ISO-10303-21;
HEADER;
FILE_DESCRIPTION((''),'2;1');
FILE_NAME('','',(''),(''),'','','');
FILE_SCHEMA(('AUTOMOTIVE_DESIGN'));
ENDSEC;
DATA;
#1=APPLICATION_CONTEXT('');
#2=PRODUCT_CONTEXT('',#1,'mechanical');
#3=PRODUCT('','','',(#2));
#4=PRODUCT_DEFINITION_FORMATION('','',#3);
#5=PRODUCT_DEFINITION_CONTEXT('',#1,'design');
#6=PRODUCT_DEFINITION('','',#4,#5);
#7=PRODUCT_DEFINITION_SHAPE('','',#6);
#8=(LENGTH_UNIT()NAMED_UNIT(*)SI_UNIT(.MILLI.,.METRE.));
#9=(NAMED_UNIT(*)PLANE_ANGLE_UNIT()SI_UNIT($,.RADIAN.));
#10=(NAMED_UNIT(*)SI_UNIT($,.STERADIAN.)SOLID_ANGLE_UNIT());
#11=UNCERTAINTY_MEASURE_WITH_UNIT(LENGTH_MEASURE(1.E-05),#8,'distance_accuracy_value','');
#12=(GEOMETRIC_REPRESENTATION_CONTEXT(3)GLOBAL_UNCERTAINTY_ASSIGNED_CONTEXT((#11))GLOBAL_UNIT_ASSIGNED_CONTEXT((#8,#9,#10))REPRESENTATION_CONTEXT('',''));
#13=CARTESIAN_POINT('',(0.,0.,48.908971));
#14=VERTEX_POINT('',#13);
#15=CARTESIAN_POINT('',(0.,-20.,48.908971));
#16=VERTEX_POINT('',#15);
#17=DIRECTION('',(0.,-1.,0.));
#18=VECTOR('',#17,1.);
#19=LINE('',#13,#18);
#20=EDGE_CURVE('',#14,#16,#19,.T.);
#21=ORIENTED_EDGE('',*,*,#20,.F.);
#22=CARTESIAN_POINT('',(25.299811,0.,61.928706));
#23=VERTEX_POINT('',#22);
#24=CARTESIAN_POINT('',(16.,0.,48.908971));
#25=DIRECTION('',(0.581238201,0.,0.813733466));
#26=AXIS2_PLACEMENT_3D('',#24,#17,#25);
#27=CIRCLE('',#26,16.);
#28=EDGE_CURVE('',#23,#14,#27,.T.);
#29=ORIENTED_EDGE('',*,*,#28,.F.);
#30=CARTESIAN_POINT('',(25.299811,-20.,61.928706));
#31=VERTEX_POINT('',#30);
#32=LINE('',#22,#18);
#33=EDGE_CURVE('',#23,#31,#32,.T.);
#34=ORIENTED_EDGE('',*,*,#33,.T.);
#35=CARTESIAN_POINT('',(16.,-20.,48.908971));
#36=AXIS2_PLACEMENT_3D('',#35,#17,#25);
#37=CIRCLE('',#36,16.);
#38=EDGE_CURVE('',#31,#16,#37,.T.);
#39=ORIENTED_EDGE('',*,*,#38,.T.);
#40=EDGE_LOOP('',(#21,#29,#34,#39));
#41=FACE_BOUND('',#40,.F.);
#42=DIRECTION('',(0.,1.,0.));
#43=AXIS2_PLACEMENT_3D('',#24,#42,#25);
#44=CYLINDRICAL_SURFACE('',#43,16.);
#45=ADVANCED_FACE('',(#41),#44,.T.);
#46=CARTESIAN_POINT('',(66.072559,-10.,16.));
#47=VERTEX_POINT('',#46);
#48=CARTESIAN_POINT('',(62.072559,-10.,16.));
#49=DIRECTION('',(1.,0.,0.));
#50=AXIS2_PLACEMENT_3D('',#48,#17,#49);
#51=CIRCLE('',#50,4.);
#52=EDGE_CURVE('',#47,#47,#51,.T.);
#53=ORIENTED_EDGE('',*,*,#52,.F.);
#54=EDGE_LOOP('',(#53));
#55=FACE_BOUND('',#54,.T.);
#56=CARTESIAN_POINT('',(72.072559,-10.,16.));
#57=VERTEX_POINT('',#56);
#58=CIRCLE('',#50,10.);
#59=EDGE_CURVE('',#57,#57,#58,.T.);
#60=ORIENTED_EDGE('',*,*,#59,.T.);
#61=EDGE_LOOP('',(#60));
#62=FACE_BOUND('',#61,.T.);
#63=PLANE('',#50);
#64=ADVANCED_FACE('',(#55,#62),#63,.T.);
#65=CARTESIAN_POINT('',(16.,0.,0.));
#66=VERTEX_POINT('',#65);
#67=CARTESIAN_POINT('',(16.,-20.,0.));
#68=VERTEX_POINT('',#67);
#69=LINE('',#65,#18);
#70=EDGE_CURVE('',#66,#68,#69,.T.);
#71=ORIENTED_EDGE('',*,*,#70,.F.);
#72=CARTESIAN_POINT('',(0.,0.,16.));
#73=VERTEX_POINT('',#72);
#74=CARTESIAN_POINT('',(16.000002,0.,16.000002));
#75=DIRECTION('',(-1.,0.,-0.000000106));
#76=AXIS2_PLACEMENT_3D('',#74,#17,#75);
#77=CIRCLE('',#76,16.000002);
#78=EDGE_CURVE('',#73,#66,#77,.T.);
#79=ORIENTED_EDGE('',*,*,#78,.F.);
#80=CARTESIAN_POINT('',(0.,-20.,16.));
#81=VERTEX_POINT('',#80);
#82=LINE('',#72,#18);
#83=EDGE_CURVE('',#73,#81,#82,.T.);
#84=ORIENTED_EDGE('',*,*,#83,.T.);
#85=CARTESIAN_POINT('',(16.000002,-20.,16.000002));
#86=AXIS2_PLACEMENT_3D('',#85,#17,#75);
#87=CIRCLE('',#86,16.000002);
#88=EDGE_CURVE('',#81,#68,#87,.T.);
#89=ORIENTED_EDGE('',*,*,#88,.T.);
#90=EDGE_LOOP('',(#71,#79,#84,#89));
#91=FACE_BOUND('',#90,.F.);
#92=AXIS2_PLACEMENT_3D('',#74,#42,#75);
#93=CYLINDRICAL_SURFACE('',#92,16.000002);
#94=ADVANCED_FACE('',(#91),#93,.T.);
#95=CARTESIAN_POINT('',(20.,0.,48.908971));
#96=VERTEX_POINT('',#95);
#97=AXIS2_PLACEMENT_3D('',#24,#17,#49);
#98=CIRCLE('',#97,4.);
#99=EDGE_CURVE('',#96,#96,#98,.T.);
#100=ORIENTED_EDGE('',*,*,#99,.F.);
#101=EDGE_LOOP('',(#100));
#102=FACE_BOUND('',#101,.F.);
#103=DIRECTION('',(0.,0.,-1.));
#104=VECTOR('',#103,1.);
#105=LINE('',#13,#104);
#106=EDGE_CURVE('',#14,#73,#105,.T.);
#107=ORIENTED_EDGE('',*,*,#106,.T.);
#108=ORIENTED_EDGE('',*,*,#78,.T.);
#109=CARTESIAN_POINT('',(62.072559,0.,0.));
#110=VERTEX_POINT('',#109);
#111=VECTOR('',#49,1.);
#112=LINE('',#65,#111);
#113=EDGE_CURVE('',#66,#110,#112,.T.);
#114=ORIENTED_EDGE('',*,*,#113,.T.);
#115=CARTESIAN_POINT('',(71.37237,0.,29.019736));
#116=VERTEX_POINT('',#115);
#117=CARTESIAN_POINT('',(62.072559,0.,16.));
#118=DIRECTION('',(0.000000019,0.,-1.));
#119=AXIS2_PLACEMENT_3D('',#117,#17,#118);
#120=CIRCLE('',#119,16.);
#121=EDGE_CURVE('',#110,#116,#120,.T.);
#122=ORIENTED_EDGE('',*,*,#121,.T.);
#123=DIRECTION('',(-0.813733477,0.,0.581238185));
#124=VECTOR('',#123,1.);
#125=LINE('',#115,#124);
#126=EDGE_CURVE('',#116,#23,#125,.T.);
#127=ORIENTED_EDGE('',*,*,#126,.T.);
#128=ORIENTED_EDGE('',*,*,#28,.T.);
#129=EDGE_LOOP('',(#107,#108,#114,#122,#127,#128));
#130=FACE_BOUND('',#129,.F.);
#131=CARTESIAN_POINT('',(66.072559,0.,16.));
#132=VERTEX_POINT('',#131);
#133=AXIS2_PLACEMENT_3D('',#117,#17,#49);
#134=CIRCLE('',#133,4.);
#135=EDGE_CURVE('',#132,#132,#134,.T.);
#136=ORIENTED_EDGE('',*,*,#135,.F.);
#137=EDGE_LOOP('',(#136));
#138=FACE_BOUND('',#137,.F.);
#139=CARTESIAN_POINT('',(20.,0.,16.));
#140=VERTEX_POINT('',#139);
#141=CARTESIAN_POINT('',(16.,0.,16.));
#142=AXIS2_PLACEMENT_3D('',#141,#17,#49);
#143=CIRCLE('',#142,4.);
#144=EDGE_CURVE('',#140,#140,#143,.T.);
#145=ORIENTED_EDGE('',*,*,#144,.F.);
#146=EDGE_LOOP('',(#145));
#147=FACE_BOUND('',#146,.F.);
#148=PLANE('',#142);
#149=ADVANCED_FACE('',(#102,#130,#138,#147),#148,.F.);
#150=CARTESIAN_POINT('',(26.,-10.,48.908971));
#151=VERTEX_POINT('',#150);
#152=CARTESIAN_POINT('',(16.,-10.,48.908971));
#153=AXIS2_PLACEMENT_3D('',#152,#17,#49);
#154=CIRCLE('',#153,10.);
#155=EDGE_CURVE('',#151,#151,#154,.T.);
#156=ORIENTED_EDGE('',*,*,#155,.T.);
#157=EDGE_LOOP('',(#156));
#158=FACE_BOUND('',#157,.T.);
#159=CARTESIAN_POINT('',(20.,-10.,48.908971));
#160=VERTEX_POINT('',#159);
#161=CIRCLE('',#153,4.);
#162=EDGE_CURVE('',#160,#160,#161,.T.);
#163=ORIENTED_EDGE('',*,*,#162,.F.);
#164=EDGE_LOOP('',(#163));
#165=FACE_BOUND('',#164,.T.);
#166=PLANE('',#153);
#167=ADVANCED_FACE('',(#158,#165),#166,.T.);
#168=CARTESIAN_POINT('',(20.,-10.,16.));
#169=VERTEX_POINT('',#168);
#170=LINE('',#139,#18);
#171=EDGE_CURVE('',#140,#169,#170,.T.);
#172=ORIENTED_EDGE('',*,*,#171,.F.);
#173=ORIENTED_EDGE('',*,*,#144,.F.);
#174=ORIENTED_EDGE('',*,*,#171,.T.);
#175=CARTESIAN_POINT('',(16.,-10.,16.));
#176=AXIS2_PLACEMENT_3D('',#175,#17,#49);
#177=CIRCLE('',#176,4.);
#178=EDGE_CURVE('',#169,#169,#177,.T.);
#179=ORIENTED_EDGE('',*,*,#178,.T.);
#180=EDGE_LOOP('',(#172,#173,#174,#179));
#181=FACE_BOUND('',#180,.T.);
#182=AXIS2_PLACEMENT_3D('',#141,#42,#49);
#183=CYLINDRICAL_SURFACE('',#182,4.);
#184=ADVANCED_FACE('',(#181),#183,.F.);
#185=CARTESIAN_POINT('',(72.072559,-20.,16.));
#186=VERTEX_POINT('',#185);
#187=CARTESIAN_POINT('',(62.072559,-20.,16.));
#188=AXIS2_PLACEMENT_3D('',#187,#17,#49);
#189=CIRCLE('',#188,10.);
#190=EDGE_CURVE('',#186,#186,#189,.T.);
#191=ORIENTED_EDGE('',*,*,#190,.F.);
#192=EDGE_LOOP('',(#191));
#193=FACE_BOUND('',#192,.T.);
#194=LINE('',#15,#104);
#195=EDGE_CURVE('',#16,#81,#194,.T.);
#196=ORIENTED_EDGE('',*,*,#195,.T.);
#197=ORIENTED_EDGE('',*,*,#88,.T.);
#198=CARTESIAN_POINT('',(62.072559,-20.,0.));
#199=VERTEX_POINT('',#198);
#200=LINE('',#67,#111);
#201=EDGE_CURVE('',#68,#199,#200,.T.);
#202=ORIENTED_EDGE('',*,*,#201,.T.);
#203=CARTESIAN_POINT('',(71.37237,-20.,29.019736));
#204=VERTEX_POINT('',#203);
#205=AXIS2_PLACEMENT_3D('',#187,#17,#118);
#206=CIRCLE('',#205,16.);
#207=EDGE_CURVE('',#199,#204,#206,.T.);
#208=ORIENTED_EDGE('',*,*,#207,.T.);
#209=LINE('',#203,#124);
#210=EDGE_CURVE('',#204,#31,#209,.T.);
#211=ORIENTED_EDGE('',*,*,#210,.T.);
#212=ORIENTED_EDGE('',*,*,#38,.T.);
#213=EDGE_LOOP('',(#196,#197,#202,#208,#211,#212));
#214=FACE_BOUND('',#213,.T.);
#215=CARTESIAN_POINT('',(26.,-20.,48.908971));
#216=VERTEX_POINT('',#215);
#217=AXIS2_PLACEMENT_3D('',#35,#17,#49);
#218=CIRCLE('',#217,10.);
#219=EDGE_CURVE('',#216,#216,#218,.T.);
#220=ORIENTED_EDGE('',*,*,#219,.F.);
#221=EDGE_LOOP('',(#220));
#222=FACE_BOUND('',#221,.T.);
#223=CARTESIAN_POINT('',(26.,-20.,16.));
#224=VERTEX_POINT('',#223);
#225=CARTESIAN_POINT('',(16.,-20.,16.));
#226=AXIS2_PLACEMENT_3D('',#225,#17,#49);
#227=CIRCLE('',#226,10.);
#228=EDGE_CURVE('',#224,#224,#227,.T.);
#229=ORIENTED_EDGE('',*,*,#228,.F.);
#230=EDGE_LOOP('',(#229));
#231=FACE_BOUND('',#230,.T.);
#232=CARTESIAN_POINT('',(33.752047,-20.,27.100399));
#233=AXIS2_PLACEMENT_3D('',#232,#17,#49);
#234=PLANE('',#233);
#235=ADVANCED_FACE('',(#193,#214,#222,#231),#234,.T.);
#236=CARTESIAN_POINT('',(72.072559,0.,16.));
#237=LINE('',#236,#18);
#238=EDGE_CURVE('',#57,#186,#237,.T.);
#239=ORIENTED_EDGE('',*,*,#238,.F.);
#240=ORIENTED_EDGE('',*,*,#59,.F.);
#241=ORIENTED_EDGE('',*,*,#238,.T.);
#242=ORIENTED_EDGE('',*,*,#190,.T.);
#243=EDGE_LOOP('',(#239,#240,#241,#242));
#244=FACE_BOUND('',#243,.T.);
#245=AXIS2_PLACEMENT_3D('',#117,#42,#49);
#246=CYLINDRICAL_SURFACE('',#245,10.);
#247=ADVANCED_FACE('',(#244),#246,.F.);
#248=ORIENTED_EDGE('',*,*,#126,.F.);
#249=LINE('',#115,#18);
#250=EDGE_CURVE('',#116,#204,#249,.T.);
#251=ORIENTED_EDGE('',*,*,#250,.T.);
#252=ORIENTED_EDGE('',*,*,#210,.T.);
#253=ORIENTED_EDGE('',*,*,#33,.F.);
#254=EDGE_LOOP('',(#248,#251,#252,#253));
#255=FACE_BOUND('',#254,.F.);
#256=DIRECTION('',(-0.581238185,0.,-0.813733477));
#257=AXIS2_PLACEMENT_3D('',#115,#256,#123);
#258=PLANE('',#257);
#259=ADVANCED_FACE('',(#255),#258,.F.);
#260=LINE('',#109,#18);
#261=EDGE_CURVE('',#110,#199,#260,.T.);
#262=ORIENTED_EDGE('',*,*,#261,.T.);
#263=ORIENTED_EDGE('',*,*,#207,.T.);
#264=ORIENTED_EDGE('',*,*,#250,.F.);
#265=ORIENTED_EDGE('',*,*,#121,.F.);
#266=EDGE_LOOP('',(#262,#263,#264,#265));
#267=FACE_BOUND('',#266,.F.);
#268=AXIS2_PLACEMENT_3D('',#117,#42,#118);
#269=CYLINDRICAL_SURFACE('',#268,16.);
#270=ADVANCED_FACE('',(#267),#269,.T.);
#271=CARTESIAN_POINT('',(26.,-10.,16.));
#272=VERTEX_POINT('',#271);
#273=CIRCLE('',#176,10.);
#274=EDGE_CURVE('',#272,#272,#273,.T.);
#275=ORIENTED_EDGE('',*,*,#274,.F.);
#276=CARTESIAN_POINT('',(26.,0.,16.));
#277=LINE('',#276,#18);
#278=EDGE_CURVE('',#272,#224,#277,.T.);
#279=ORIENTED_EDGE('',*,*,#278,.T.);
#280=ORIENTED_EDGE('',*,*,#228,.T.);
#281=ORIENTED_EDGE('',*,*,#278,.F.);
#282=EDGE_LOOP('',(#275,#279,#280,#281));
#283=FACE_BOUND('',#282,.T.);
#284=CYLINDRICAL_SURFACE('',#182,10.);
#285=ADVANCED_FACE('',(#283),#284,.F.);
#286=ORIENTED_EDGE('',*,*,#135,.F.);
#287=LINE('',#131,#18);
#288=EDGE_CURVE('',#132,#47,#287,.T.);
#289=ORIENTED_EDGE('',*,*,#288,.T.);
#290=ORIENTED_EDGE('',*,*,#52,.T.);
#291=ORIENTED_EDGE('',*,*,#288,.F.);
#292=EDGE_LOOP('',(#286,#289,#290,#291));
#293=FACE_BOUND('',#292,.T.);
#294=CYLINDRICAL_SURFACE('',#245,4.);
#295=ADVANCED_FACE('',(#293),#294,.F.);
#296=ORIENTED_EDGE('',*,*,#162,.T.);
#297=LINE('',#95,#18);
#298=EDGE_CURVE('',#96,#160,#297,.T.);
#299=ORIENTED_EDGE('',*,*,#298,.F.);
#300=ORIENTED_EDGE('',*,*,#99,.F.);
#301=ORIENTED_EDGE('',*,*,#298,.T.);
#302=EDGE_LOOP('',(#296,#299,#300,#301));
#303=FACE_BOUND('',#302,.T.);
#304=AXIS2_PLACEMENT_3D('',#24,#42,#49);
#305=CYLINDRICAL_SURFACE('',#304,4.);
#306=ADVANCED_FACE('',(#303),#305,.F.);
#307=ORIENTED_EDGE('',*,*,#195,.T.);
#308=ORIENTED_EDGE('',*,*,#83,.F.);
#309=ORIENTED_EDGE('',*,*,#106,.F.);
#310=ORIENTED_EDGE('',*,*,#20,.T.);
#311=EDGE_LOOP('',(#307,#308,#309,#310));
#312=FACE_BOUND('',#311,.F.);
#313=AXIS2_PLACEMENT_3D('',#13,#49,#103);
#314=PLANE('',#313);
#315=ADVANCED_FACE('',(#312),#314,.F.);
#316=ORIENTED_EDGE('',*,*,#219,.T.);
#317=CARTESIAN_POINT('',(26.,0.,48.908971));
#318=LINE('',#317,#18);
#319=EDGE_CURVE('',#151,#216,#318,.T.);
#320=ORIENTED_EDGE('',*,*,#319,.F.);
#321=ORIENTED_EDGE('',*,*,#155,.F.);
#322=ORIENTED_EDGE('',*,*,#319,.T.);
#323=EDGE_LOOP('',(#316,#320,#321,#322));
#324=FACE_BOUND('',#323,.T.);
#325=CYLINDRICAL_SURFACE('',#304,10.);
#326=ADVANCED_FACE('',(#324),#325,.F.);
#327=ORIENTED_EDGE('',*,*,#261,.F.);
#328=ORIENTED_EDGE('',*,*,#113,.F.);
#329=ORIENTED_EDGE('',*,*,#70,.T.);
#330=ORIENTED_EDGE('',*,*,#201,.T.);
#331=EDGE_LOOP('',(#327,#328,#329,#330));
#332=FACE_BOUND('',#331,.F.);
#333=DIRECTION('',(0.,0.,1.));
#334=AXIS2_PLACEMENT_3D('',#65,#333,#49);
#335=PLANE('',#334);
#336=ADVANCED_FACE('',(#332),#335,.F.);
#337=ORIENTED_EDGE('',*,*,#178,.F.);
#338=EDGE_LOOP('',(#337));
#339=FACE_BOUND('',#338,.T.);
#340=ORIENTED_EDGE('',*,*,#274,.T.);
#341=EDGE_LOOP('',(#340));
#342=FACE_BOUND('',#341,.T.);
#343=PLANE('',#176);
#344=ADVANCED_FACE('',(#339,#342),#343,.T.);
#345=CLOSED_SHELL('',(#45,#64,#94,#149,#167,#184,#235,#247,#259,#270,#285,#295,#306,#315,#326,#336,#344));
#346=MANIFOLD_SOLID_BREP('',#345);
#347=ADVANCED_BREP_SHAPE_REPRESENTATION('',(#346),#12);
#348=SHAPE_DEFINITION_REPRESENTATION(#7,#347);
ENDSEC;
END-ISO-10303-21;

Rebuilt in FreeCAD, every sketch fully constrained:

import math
import FreeCAD as App
import Part
import Sketcher
from FreeCAD import Vector

doc = App.newDocument("Part")
body = doc.addObject("PartDesign::Body", "Body")

# Sketch on XZ plane
sketch1 = body.newObject("Sketcher::SketchObject", "Sketch")
sketch1.AttachmentSupport = (doc.getObject("XZ_Plane"), [""])
sketch1.MapMode = "FlatFace"
sketch1.addGeometry([
    Part.ArcOfCircle(Part.Circle(Vector(16, 16, 0), Vector(0, 0, 1), 16), math.radians(-180), math.radians(-90)),  # 0
    Part.LineSegment(Vector(16, 0, 0), Vector(62, 0, 0)),  # 1
    Part.ArcOfCircle(Part.Circle(Vector(62, 16, 0), Vector(0, 0, 1), 16), math.radians(-90), math.radians(54)),  # 2
    Part.LineSegment(Vector(71, 29, 0), Vector(25, 62, 0)),  # 3
    Part.ArcOfCircle(Part.Circle(Vector(16, 49, 0), Vector(0, 0, 1), 16), math.radians(54), math.radians(180)),  # 4
    Part.LineSegment(Vector(0, 49, 0), Vector(0, 16, 0)),  # 5
    Part.Circle(Vector(16, 16, 0), Vector(0, 0, 1), 10),  # 6
    Part.Circle(Vector(62, 16, 0), Vector(0, 0, 1), 10),  # 7
    Part.Circle(Vector(16, 49, 0), Vector(0, 0, 1), 10),  # 8
], False)
sketch1.addConstraint([
    Sketcher.Constraint("Tangent", 0, 2, 1, 1),
    Sketcher.Constraint("Tangent", 1, 2, 2, 1),
    Sketcher.Constraint("Tangent", 2, 2, 3, 1),
    Sketcher.Constraint("Tangent", 3, 2, 4, 1),
    Sketcher.Constraint("Tangent", 4, 2, 5, 1),
    Sketcher.Constraint("Tangent", 5, 2, 0, 1),
    Sketcher.Constraint("Horizontal", 1),
    Sketcher.Constraint("Vertical", 5),
    Sketcher.Constraint("Coincident", 6, 3, 0, 3),
    Sketcher.Constraint("Coincident", 7, 3, 2, 3),
    Sketcher.Constraint("Coincident", 8, 3, 4, 3),
    Sketcher.Constraint("Equal", 0, 2),
    Sketcher.Constraint("Equal", 2, 4),
    Sketcher.Constraint("Equal", 6, 7),
    Sketcher.Constraint("Equal", 7, 8),
    Sketcher.Constraint("PointOnObject", 0, 2, -1),
    Sketcher.Constraint("PointOnObject", 4, 2, -2),
    Sketcher.Constraint("Diameter", 6, 20.0),
    Sketcher.Constraint("Radius", 0, 16.000002),
    Sketcher.Constraint("DistanceX", 1, 1, 1, 2, 46.072559),
    Sketcher.Constraint("DistanceY", 5, 2, 5, 1, 32.908971),
])
pad1 = body.newObject("PartDesign::Pad", "Pad")
pad1.Profile = sketch1
pad1.Length = 20

# Sketch on XZ plane
sketch2 = body.newObject("Sketcher::SketchObject", "Sketch001")
sketch2.AttachmentSupport = (doc.getObject("XZ_Plane"), [""])
sketch2.MapMode = "FlatFace"
sketch2.addGeometry([
    Part.Circle(Vector(16, 16, 0), Vector(0, 0, 1), 10),  # 0
    Part.Circle(Vector(16, 16, 0), Vector(0, 0, 1), 4),  # 1
    Part.Circle(Vector(16, 48.9, 0), Vector(0, 0, 1), 10),  # 2
    Part.Circle(Vector(16, 48.9, 0), Vector(0, 0, 1), 4),  # 3
    Part.Circle(Vector(62.1, 16, 0), Vector(0, 0, 1), 10),  # 4
    Part.Circle(Vector(62.1, 16, 0), Vector(0, 0, 1), 4),  # 5
], False)
sketch2.addConstraint([
    Sketcher.Constraint("Coincident", 1, 3, 0, 3),
    Sketcher.Constraint("Coincident", 3, 3, 2, 3),
    Sketcher.Constraint("Coincident", 5, 3, 4, 3),
    Sketcher.Constraint("Equal", 0, 2),
    Sketcher.Constraint("Equal", 1, 3),
    Sketcher.Constraint("Equal", 2, 4),
    Sketcher.Constraint("Equal", 3, 5),
    Sketcher.Constraint("Horizontal", 1, 3, 4, 3),
    Sketcher.Constraint("Vertical", 1, 3, 2, 3),
    Sketcher.Constraint("Diameter", 0, 20.0),
    Sketcher.Constraint("Diameter", 1, 8.0),
    Sketcher.Constraint("DistanceX", -1, 1, 0, 3, 16.0),
    Sketcher.Constraint("DistanceY", -1, 1, 0, 3, 16.0),
    Sketcher.Constraint("DistanceY", -1, 1, 2, 3, 48.908971),
    Sketcher.Constraint("DistanceX", -1, 1, 4, 3, 62.072559),
])
pad2 = body.newObject("PartDesign::Pad", "Pad001")
pad2.Profile = sketch2
pad2.Length = 10

doc.recompute()
